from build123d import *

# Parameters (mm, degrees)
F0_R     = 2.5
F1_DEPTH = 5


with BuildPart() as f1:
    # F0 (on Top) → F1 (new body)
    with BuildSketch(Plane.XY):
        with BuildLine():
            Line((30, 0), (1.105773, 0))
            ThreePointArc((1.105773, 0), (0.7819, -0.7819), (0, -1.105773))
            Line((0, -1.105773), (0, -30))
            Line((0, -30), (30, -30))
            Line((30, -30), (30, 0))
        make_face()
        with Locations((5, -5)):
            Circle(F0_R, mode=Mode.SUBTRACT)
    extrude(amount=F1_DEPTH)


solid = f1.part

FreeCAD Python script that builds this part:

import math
import FreeCAD as App
import Part
import Sketcher
from FreeCAD import Vector
Q = App.Units.Quantity

doc = App.newDocument("Part")
body = doc.addObject("PartDesign::Body", "Body")

sketch1 = body.newObject("Sketcher::SketchObject", "Sketch")
sketch1.AttachmentSupport = (doc.getObject("XY_Plane"), [""])
sketch1.MapMode = "FlatFace"
sketch1.addGeometry([
    Part.LineSegment(Vector(30, 0, 0), Vector(1.105773, 0, 0)),
    Part.ArcOfCircle(Part.Circle(Vector(0.000001, -0.000001, 0), Vector(0, 0, 1), 1.105772), math.radians(-90.000073), math.radians(0.000073)),
    Part.LineSegment(Vector(0, -1.105773, 0), Vector(0, -30, 0)),
    Part.LineSegment(Vector(0, -30, 0), Vector(30, -30, 0)),
    Part.LineSegment(Vector(30, -30, 0), Vector(30, 0, 0)),
    Part.Circle(Vector(5, -5, 0), Vector(0, 0, 1), 2.5),
], False)
sketch1.addConstraint([
    Sketcher.Constraint("Coincident", 0, 2, 1, 2),
    Sketcher.Constraint("Coincident", 1, 1, 2, 1),
    Sketcher.Constraint("Coincident", 2, 2, 3, 1),
    Sketcher.Constraint("Coincident", 3, 2, 4, 1),
    Sketcher.Constraint("Coincident", 4, 2, 0, 1),
    Sketcher.Constraint("Horizontal", 0),
    Sketcher.Constraint("Vertical", 2),
    Sketcher.Constraint("Horizontal", 3),
    Sketcher.Constraint("Vertical", 4),
    Sketcher.Constraint("Coincident", 1, 3, -1, 1),
    Sketcher.Constraint("PointOnObject", 0, 2, -1),
    Sketcher.Constraint("PointOnObject", 1, 1, -2),
    Sketcher.Constraint("Equal", 0, 2),
    Sketcher.Constraint("Diameter", 5, Q("5 mm")),
    Sketcher.Constraint("DistanceX", 3, 1, 3, 2, Q("30 mm")),
    Sketcher.Constraint("DistanceX", -1, 1, 5, 3, Q("5 mm")),
    Sketcher.Constraint("DistanceY", 5, 3, -1, 1, Q("5 mm")),
    Sketcher.Constraint("Radius", 1, Q("1.105772 mm")),
])
pad1 = body.newObject("PartDesign::Pad", "Pad")
pad1.Profile = sketch1
pad1.Length = 5

doc.recompute()
